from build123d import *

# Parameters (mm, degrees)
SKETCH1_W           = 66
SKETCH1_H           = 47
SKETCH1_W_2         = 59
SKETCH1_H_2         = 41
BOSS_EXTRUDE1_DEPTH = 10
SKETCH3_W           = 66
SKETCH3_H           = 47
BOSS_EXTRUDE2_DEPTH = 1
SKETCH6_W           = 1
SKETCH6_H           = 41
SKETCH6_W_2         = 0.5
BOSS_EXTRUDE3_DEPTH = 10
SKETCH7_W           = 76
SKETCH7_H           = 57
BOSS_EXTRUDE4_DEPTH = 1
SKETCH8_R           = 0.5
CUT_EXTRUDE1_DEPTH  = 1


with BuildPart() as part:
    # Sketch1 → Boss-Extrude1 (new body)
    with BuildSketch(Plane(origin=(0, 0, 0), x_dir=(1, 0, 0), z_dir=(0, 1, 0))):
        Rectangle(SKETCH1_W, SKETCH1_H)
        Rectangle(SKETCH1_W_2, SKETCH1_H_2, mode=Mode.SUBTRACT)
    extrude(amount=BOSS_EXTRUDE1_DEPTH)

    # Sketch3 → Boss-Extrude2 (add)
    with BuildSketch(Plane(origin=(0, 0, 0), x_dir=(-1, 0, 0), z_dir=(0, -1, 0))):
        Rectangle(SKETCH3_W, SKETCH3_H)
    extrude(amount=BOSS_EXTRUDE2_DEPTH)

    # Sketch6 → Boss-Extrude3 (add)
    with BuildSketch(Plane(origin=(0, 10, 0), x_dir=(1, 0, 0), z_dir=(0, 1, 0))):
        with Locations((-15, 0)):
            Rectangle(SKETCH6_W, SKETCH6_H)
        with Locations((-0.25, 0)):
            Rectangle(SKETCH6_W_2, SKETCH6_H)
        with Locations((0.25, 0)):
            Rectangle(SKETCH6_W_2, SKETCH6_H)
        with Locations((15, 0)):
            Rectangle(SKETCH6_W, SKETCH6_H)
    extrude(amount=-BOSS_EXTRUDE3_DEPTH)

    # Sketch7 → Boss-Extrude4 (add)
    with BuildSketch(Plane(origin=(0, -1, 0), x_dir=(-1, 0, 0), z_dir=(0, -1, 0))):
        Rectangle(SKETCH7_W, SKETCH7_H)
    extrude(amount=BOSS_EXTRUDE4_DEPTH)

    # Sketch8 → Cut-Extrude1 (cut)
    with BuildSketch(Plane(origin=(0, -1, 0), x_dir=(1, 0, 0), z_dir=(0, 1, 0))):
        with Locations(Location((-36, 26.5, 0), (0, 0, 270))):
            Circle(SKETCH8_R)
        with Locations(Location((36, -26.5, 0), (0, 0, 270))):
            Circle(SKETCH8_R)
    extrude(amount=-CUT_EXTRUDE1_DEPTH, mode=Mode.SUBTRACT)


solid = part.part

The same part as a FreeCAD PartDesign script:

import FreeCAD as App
import Part
import Sketcher
Q = App.Units.Quantity

doc = App.newDocument("Part")
body = doc.addObject("PartDesign::Body", "Body")

sketch1 = body.newObject("Sketcher::SketchObject", "Sketch")
sketch1.AttachmentSupport = (doc.getObject("XZ_Plane"), [""])
sketch1.MapMode = "FlatFace"
sketch1.addGeometry(Part.LineSegment(App.Vector(-33, -24, 0), App.Vector(-33, 24, 0)), False)
sketch1.addGeometry(Part.LineSegment(App.Vector(-33, 24, 0), App.Vector(33, 24, 0)), False)
sketch1.addGeometry(Part.LineSegment(App.Vector(33, 24, 0), App.Vector(33, -24, 0)), False)
sketch1.addGeometry(Part.LineSegment(App.Vector(33, -24, 0), App.Vector(-33, -24, 0)), False)
sketch1.addGeometry(Part.LineSegment(App.Vector(30, 20, 0), App.Vector(-30, 20, 0)), False)
sketch1.addGeometry(Part.LineSegment(App.Vector(-30, 20, 0), App.Vector(-30, -20, 0)), False)
sketch1.addGeometry(Part.LineSegment(App.Vector(-30, -20, 0), App.Vector(30, -20, 0)), False)
sketch1.addGeometry(Part.LineSegment(App.Vector(30, -20, 0), App.Vector(30, 20, 0)), False)
sketch1.addConstraint(Sketcher.Constraint("Coincident", 0, 2, 1, 1))
sketch1.addConstraint(Sketcher.Constraint("Coincident", 1, 2, 2, 1))
sketch1.addConstraint(Sketcher.Constraint("Coincident", 2, 2, 3, 1))
sketch1.addConstraint(Sketcher.Constraint("Coincident", 3, 2, 0, 1))
sketch1.addConstraint(Sketcher.Constraint("Coincident", 4, 2, 5, 1))
sketch1.addConstraint(Sketcher.Constraint("Coincident", 5, 2, 6, 1))
sketch1.addConstraint(Sketcher.Constraint("Coincident", 6, 2, 7, 1))
sketch1.addConstraint(Sketcher.Constraint("Coincident", 7, 2, 4, 1))
sketch1.addConstraint(Sketcher.Constraint("Vertical", 0))
sketch1.addConstraint(Sketcher.Constraint("Horizontal", 1))
sketch1.addConstraint(Sketcher.Constraint("Vertical", 2))
sketch1.addConstraint(Sketcher.Constraint("Horizontal", 3))
sketch1.addConstraint(Sketcher.Constraint("Horizontal", 4))
sketch1.addConstraint(Sketcher.Constraint("Vertical", 5))
sketch1.addConstraint(Sketcher.Constraint("Horizontal", 6))
sketch1.addConstraint(Sketcher.Constraint("Vertical", 7))
sketch1.addConstraint(Sketcher.Constraint("Symmetric", 0, 2, 2, 2, -1, 1))
sketch1.addConstraint(Sketcher.Constraint("Symmetric", 4, 2, 6, 2, -1, 1))
sketch1.addConstraint(Sketcher.Constraint("DistanceX", 1, 1, 1, 2, Q("66 mm")))
sketch1.addConstraint(Sketcher.Constraint("DistanceX", 4, 2, 4, 1, Q("59 mm")))
sketch1.addConstraint(Sketcher.Constraint("DistanceY", 0, 1, 0, 2, Q("47 mm")))
sketch1.addConstraint(Sketcher.Constraint("DistanceY", 5, 2, 5, 1, Q("41 mm")))
pad1 = body.newObject("PartDesign::Pad", "Pad")
pad1.Profile = sketch1
pad1.Length = 10
pad1.Reversed = True

sketch2 = body.newObject("Sketcher::SketchObject", "Sketch001")
sketch2.AttachmentSupport = (doc.getObject("XZ_Plane"), [""])
sketch2.MapMode = "FlatFace"
sketch2.addGeometry(Part.LineSegment(App.Vector(33, -24, 0), App.Vector(33, 24, 0)), False)
sketch2.addGeometry(Part.LineSegment(App.Vector(33, 24, 0), App.Vector(-33, 24, 0)), False)
sketch2.addGeometry(Part.LineSegment(App.Vector(-33, 24, 0), App.Vector(-33, -24, 0)), False)
sketch2.addGeometry(Part.LineSegment(App.Vector(-33, -24, 0), App.Vector(33, -24, 0)), False)
sketch2.addConstraint(Sketcher.Constraint("Coincident", 0, 2, 1, 1))
sketch2.addConstraint(Sketcher.Constraint("Coincident", 1, 2, 2, 1))
sketch2.addConstraint(Sketcher.Constraint("Coincident", 2, 2, 3, 1))
sketch2.addConstraint(Sketcher.Constraint("Coincident", 3, 2, 0, 1))
sketch2.addConstraint(Sketcher.Constraint("Vertical", 0))
sketch2.addConstraint(Sketcher.Constraint("Horizontal", 1))
sketch2.addConstraint(Sketcher.Constraint("Vertical", 2))
sketch2.addConstraint(Sketcher.Constraint("Horizontal", 3))
sketch2.addConstraint(Sketcher.Constraint("Symmetric", 0, 2, 2, 2, -1, 1))
sketch2.addConstraint(Sketcher.Constraint("DistanceX", 1, 2, 1, 1, Q("66 mm")))
sketch2.addConstraint(Sketcher.Constraint("DistanceY", 0, 1, 0, 2, Q("47 mm")))
pad2 = body.newObject("PartDesign::Pad", "Pad001")
pad2.Profile = sketch2
pad2.Length = 1

sketch3 = body.newObject("Sketcher::SketchObject", "Sketch002")
sketch3.AttachmentSupport = (doc.getObject("XZ_Plane"), [""])
sketch3.MapMode = "FlatFace"
sketch3.AttachmentOffset = App.Placement(App.Vector(0, 0, -10), App.Rotation())
sketch3.addGeometry(Part.LineSegment(App.Vector(-15.5, -20.5, 0), App.Vector(-15.5, 20.5, 0)), False)
sketch3.addGeometry(Part.LineSegment(App.Vector(-15.5, 20.5, 0), App.Vector(-14.5, 20.5, 0)), False)
sketch3.addGeometry(Part.LineSegment(App.Vector(-14.5, 20.5, 0), App.Vector(-14.5, -20.5, 0)), False)
sketch3.addGeometry(Part.LineSegment(App.Vector(-14.5, -20.5, 0), App.Vector(-15.5, -20.5, 0)), False)
sketch3.addGeometry(Part.LineSegment(App.Vector(-0.5, -20.5, 0), App.Vector(-0.5, 20.5, 0)), False)
sketch3.addGeometry(Part.LineSegment(App.Vector(-0.5, 20.5, 0), App.Vector(0.5, 20.5, 0)), False)
sketch3.addGeometry(Part.LineSegment(App.Vector(0.5, 20.5, 0), App.Vector(0.5, -20.5, 0)), False)
sketch3.addGeometry(Part.LineSegment(App.Vector(0.5, -20.5, 0), App.Vector(-0.5, -20.5, 0)), False)
sketch3.addGeometry(Part.LineSegment(App.Vector(14.5, -20.5, 0), App.Vector(14.5, 20.5, 0)), False)
sketch3.addGeometry(Part.LineSegment(App.Vector(14.5, 20.5, 0), App.Vector(15.5, 20.5, 0)), False)
sketch3.addGeometry(Part.LineSegment(App.Vector(15.5, 20.5, 0), App.Vector(15.5, -20.5, 0)), False)
sketch3.addGeometry(Part.LineSegment(App.Vector(15.5, -20.5, 0), App.Vector(14.5, -20.5, 0)), False)
sketch3.addConstraint(Sketcher.Constraint("Coincident", 0, 2, 1, 1))
sketch3.addConstraint(Sketcher.Constraint("Coincident", 1, 2, 2, 1))
sketch3.addConstraint(Sketcher.Constraint("Coincident", 2, 2, 3, 1))
sketch3.addConstraint(Sketcher.Constraint("Coincident", 3, 2, 0, 1))
sketch3.addConstraint(Sketcher.Constraint("Coincident", 4, 2, 5, 1))
sketch3.addConstraint(Sketcher.Constraint("Coincident", 5, 2, 6, 1))
sketch3.addConstraint(Sketcher.Constraint("Coincident", 6, 2, 7, 1))
sketch3.addConstraint(Sketcher.Constraint("Coincident", 7, 2, 4, 1))
sketch3.addConstraint(Sketcher.Constraint("Coincident", 8, 2, 9, 1))
sketch3.addConstraint(Sketcher.Constraint("Coincident", 9, 2, 10, 1))
sketch3.addConstraint(Sketcher.Constraint("Coincident", 10, 2, 11, 1))
sketch3.addConstraint(Sketcher.Constraint("Coincident", 11, 2, 8, 1))
sketch3.addConstraint(Sketcher.Constraint("Vertical", 0))
sketch3.addConstraint(Sketcher.Constraint("Horizontal", 1))
sketch3.addConstraint(Sketcher.Constraint("Vertical", 2))
sketch3.addConstraint(Sketcher.Constraint("Horizontal", 3))
sketch3.addConstraint(Sketcher.Constraint("Vertical", 4))
sketch3.addConstraint(Sketcher.Constraint("Horizontal", 5))
sketch3.addConstraint(Sketcher.Constraint("Vertical", 6))
sketch3.addConstraint(Sketcher.Constraint("Horizontal", 7))
sketch3.addConstraint(Sketcher.Constraint("Vertical", 8))
sketch3.addConstraint(Sketcher.Constraint("Horizontal", 9))
sketch3.addConstraint(Sketcher.Constraint("Vertical", 10))
sketch3.addConstraint(Sketcher.Constraint("Horizontal", 11))
sketch3.addConstraint(Sketcher.Constraint("Symmetric", 4, 2, 6, 2, -1, 1))
sketch3.addConstraint(Sketcher.Constraint("Symmetric", 2, 2, 8, 2, -1, 1))
sketch3.addConstraint(Sketcher.Constraint("Symmetric", 0, 2, 10, 2, -1, 1))
sketch3.addConstraint(Sketcher.Constraint("Horizontal", 1, 2, 4, 2))
sketch3.addConstraint(Sketcher.Constraint("Horizontal", 3, 2, 6, 2))
sketch3.addConstraint(Sketcher.Constraint("Equal", 3, 5))
sketch3.addConstraint(Sketcher.Constraint("DistanceX", 1, 1, 1, 2, Q("1 mm")))
sketch3.addConstraint(Sketcher.Constraint("DistanceY", 0, 1, 0, 2, Q("41 mm")))
sketch3.addConstraint(Sketcher.Constraint("DistanceX", 1, 2, 4, 2, Q("14 mm")))
pad3 = body.newObject("PartDesign::Pad", "Pad002")
pad3.Profile = sketch3
pad3.Length = 10

sketch4 = body.newObject("Sketcher::SketchObject", "Sketch003")
sketch4.AttachmentSupport = (doc.getObject("XZ_Plane"), [""])
sketch4.MapMode = "FlatFace"
sketch4.AttachmentOffset = App.Placement(App.Vector(0, 0, 1), App.Rotation())
sketch4.addGeometry(Part.LineSegment(App.Vector(38, -28, 0), App.Vector(38, 28, 0)), False)
sketch4.addGeometry(Part.LineSegment(App.Vector(38, 28, 0), App.Vector(-38, 28, 0)), False)
sketch4.addGeometry(Part.LineSegment(App.Vector(-38, 28, 0), App.Vector(-38, -28, 0)), False)
sketch4.addGeometry(Part.LineSegment(App.Vector(-38, -28, 0), App.Vector(38, -28, 0)), False)
sketch4.addConstraint(Sketcher.Constraint("Coincident", 0, 2, 1, 1))
sketch4.addConstraint(Sketcher.Constraint("Coincident", 1, 2, 2, 1))
sketch4.addConstraint(Sketcher.Constraint("Coincident", 2, 2, 3, 1))
sketch4.addConstraint(Sketcher.Constraint("Coincident", 3, 2, 0, 1))
sketch4.addConstraint(Sketcher.Constraint("Vertical", 0))
sketch4.addConstraint(Sketcher.Constraint("Horizontal", 1))
sketch4.addConstraint(Sketcher.Constraint("Vertical", 2))
sketch4.addConstraint(Sketcher.Constraint("Horizontal", 3))
sketch4.addConstraint(Sketcher.Constraint("Symmetric", 0, 2, 2, 2, -1, 1))
sketch4.addConstraint(Sketcher.Constraint("DistanceX", 1, 2, 1, 1, Q("76 mm")))
sketch4.addConstraint(Sketcher.Constraint("DistanceY", 0, 1, 0, 2, Q("57 mm")))
pad4 = body.newObject("PartDesign::Pad", "Pad003")
pad4.Profile = sketch4
pad4.Length = 1

sketch5 = body.newObject("Sketcher::SketchObject", "Sketch004")
sketch5.AttachmentSupport = (doc.getObject("XZ_Plane"), [""])
sketch5.MapMode = "FlatFace"
sketch5.AttachmentOffset = App.Placement(App.Vector(0, 0, 1), App.Rotation())
sketch5.addGeometry(Part.Circle(App.Vector(-36, -26.5, 0), App.Vector(0, 0, 1), 0.5), False)
sketch5.addGeometry(Part.Circle(App.Vector(36, 26.5, 0), App.Vector(0, 0, 1), 0.5), False)
sketch5.addConstraint(Sketcher.Constraint("Equal", 0, 1))
sketch5.addConstraint(Sketcher.Constraint("Symmetric", 0, 3, 1, 3, -1, 1))
sketch5.addConstraint(Sketcher.Constraint("Diameter", 0, Q("1 mm")))
sketch5.addConstraint(Sketcher.Constraint("DistanceX", 0, 3, -1, 1, Q("36 mm")))
sketch5.addConstraint(Sketcher.Constraint("DistanceY", 0, 3, 1, 3, Q("53 mm")))
pocket1 = body.newObject("PartDesign::Pocket", "Pocket")
pocket1.Profile = sketch5
pocket1.Length = 1
pocket1.Reversed = True

doc.recompute()
